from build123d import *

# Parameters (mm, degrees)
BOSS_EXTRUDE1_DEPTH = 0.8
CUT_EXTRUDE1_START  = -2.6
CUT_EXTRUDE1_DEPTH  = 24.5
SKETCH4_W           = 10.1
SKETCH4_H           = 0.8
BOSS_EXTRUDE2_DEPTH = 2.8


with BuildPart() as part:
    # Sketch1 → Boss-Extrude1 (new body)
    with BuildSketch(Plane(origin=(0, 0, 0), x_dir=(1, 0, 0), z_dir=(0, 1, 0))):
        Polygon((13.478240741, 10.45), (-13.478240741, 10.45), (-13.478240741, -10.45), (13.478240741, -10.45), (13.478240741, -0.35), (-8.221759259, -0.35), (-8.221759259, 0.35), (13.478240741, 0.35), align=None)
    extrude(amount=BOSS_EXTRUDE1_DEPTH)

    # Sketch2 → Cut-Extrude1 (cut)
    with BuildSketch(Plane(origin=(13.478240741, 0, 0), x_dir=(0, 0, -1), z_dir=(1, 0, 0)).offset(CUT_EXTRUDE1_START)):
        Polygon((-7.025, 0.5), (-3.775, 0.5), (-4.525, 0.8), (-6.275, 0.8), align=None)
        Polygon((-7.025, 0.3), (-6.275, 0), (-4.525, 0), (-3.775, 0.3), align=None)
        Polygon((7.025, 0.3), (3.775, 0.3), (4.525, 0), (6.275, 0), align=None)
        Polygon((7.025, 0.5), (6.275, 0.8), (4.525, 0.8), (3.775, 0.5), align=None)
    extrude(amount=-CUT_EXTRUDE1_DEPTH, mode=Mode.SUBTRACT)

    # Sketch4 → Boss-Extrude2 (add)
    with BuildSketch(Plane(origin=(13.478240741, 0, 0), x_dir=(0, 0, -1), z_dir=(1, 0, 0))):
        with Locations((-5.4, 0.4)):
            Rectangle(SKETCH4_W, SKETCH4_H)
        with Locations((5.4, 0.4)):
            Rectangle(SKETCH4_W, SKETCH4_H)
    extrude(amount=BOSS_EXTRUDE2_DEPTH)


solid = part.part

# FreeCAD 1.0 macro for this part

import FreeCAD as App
import Part
import Sketcher


def add_polygon(sketch, points):
    """Adds a closed chain of lines whose ends are joined by coincident constraints."""
    first, n = sketch.GeometryCount, len(points)
    for a, b in zip(points, points[1:] + points[:1]):
        sketch.addGeometry(Part.LineSegment(App.Vector(*a, 0), App.Vector(*b, 0)), False)
    for i in range(n):
        sketch.addConstraint(Sketcher.Constraint("Coincident", first + i, 2, first + (i + 1) % n, 1))

doc = App.newDocument("Part")
body = doc.addObject("PartDesign::Body", "Body")

sketch1 = body.newObject("Sketcher::SketchObject", "Sketch")
sketch1.AttachmentSupport = (doc.getObject("XZ_Plane"), [""])
sketch1.MapMode = "FlatFace"
add_polygon(sketch1, [(13.5, -10.4), (-13.5, -10.4), (-13.5, 10.4), (13.5, 10.4), (13.5, 0.3), (-8.2, 0.3), (-8.2, -0.3), (13.5, -0.3)])
sketch1.addConstraint(Sketcher.Constraint("Horizontal", 0))
sketch1.addConstraint(Sketcher.Constraint("Vertical", 1))
sketch1.addConstraint(Sketcher.Constraint("Horizontal", 2))
sketch1.addConstraint(Sketcher.Constraint("Vertical", 3))
sketch1.addConstraint(Sketcher.Constraint("Horizontal", 4))
sketch1.addConstraint(Sketcher.Constraint("Vertical", 5))
sketch1.addConstraint(Sketcher.Constraint("Horizontal", 6))
sketch1.addConstraint(Sketcher.Constraint("Vertical", 7))
sketch1.addConstraint(Sketcher.Constraint("Symmetric", 0, 2, 2, 2, -1, 1))
sketch1.addConstraint(Sketcher.Constraint("Symmetric", 3, 2, 6, 2, -1))
sketch1.addConstraint(Sketcher.Constraint("DistanceX", 4, 2, 4, 1, 21.7))
sketch1.addConstraint(Sketcher.Constraint("DistanceY", 1, 1, 1, 2, 20.9))
sketch1.addConstraint(Sketcher.Constraint("DistanceY", 3, 2, 3, 1, 10.1))
sketch1.addConstraint(Sketcher.Constraint("DistanceX", 0, 2, 0, 1, 26.956481))
pad1 = body.newObject("PartDesign::Pad", "Pad")
pad1.Profile = sketch1
pad1.Length = 0.8
pad1.Reversed = True

sketch2 = body.newObject("Sketcher::SketchObject", "Sketch001")
sketch2.AttachmentSupport = (doc.getObject("YZ_Plane"), [""])
sketch2.MapMode = "FlatFace"
sketch2.AttachmentOffset = App.Placement(App.Vector(0, 0, 10.878241), App.Rotation())
add_polygon(sketch2, [(0.5, 7), (0.5, 3.8), (0.8, 4.5), (0.8, 6.3)])
add_polygon(sketch2, [(0.3, 7), (0, 6.3), (0, 4.5), (0.3, 3.8)])
add_polygon(sketch2, [(0.3, -7), (0.3, -3.8), (0, -4.5), (0, -6.3)])
add_polygon(sketch2, [(0.5, -7), (0.8, -6.3), (0.8, -4.5), (0.5, -3.8)])
sketch2.addConstraint(Sketcher.Constraint("Vertical", 0))
sketch2.addConstraint(Sketcher.Constraint("Vertical", 2))
sketch2.addConstraint(Sketcher.Constraint("Vertical", 5))
sketch2.addConstraint(Sketcher.Constraint("Vertical", 7))
sketch2.addConstraint(Sketcher.Constraint("Vertical", 8))
sketch2.addConstraint(Sketcher.Constraint("Vertical", 10))
sketch2.addConstraint(Sketcher.Constraint("Vertical", 13))
sketch2.addConstraint(Sketcher.Constraint("Vertical", 15))
sketch2.addConstraint(Sketcher.Constraint("Symmetric", 5, 2, 9, 2, -1, 1))
sketch2.addConstraint(Sketcher.Constraint("Symmetric", 6, 2, 8, 2, -1))
sketch2.addConstraint(Sketcher.Constraint("Symmetric", 4, 2, 10, 2, -1))
sketch2.addConstraint(Sketcher.Constraint("Symmetric", 2, 2, 12, 2, -1))
sketch2.addConstraint(Sketcher.Constraint("Symmetric", 0, 2, 14, 2, -1))
sketch2.addConstraint(Sketcher.Constraint("Parallel", 1, 4))
sketch2.addConstraint(Sketcher.Constraint("Parallel", 3, 6))
sketch2.addConstraint(Sketcher.Constraint("Parallel", 4, 9))
sketch2.addConstraint(Sketcher.Constraint("Parallel", 6, 11))
sketch2.addConstraint(Sketcher.Constraint("Parallel", 9, 12))
sketch2.addConstraint(Sketcher.Constraint("Parallel", 11, 14))
sketch2.addConstraint(Sketcher.Constraint("Horizontal", 2, 2, 4, 2))
sketch2.addConstraint(Sketcher.Constraint("Horizontal", 1, 2, 5, 2))
sketch2.addConstraint(Sketcher.Constraint("Horizontal", 0, 2, 6, 2))
sketch2.addConstraint(Sketcher.Constraint("DistanceY", 0, 2, 0, 1, 3.25))
sketch2.addConstraint(Sketcher.Constraint("DistanceY", 2, 1, 2, 2, 1.75))
sketch2.addConstraint(Sketcher.Constraint("DistanceX", -1, 1, 0, 2, 0.5))
sketch2.addConstraint(Sketcher.Constraint("DistanceX", -1, 1, 1, 2, 0.8))
sketch2.addConstraint(Sketcher.Constraint("DistanceY", 8, 2, 5, 2, 8.3))
pocket1 = body.newObject("PartDesign::Pocket", "Pocket")
pocket1.Profile = sketch2
pocket1.Length = 24.5

sketch3 = body.newObject("Sketcher::SketchObject", "Sketch002")
sketch3.AttachmentSupport = (doc.getObject("YZ_Plane"), [""])
sketch3.MapMode = "FlatFace"
sketch3.AttachmentOffset = App.Placement(App.Vector(0, 0, 13.478241), App.Rotation())
add_polygon(sketch3, [(0.8, 10.4), (0, 10.4), (0, 0.3), (0.8, 0.3)])
add_polygon(sketch3, [(0.8, -0.3), (0, -0.3), (0, -10.4), (0.8, -10.4)])
sketch3.addConstraint(Sketcher.Constraint("Horizontal", 0))
sketch3.addConstraint(Sketcher.Constraint("Vertical", 1))
sketch3.addConstraint(Sketcher.Constraint("Horizontal", 2))
sketch3.addConstraint(Sketcher.Constraint("Vertical", 3))
sketch3.addConstraint(Sketcher.Constraint("Horizontal", 4))
sketch3.addConstraint(Sketcher.Constraint("Vertical", 5))
sketch3.addConstraint(Sketcher.Constraint("Horizontal", 6))
sketch3.addConstraint(Sketcher.Constraint("Vertical", 7))
sketch3.addConstraint(Sketcher.Constraint("Symmetric", 1, 2, 4, 2, -1, 1))
sketch3.addConstraint(Sketcher.Constraint("Symmetric", 0, 2, 5, 2, -1))
sketch3.addConstraint(Sketcher.Constraint("Vertical", 3, 2, 6, 2))
sketch3.addConstraint(Sketcher.Constraint("DistanceX", 0, 2, 0, 1, 0.8))
sketch3.addConstraint(Sketcher.Constraint("DistanceY", 1, 2, 1, 1, 10.1))
sketch3.addConstraint(Sketcher.Constraint("DistanceY", 4, 2, 1, 2, 0.7))
pad2 = body.newObject("PartDesign::Pad", "Pad001")
pad2.Profile = sketch3
pad2.Length = 2.8

doc.recompute()
